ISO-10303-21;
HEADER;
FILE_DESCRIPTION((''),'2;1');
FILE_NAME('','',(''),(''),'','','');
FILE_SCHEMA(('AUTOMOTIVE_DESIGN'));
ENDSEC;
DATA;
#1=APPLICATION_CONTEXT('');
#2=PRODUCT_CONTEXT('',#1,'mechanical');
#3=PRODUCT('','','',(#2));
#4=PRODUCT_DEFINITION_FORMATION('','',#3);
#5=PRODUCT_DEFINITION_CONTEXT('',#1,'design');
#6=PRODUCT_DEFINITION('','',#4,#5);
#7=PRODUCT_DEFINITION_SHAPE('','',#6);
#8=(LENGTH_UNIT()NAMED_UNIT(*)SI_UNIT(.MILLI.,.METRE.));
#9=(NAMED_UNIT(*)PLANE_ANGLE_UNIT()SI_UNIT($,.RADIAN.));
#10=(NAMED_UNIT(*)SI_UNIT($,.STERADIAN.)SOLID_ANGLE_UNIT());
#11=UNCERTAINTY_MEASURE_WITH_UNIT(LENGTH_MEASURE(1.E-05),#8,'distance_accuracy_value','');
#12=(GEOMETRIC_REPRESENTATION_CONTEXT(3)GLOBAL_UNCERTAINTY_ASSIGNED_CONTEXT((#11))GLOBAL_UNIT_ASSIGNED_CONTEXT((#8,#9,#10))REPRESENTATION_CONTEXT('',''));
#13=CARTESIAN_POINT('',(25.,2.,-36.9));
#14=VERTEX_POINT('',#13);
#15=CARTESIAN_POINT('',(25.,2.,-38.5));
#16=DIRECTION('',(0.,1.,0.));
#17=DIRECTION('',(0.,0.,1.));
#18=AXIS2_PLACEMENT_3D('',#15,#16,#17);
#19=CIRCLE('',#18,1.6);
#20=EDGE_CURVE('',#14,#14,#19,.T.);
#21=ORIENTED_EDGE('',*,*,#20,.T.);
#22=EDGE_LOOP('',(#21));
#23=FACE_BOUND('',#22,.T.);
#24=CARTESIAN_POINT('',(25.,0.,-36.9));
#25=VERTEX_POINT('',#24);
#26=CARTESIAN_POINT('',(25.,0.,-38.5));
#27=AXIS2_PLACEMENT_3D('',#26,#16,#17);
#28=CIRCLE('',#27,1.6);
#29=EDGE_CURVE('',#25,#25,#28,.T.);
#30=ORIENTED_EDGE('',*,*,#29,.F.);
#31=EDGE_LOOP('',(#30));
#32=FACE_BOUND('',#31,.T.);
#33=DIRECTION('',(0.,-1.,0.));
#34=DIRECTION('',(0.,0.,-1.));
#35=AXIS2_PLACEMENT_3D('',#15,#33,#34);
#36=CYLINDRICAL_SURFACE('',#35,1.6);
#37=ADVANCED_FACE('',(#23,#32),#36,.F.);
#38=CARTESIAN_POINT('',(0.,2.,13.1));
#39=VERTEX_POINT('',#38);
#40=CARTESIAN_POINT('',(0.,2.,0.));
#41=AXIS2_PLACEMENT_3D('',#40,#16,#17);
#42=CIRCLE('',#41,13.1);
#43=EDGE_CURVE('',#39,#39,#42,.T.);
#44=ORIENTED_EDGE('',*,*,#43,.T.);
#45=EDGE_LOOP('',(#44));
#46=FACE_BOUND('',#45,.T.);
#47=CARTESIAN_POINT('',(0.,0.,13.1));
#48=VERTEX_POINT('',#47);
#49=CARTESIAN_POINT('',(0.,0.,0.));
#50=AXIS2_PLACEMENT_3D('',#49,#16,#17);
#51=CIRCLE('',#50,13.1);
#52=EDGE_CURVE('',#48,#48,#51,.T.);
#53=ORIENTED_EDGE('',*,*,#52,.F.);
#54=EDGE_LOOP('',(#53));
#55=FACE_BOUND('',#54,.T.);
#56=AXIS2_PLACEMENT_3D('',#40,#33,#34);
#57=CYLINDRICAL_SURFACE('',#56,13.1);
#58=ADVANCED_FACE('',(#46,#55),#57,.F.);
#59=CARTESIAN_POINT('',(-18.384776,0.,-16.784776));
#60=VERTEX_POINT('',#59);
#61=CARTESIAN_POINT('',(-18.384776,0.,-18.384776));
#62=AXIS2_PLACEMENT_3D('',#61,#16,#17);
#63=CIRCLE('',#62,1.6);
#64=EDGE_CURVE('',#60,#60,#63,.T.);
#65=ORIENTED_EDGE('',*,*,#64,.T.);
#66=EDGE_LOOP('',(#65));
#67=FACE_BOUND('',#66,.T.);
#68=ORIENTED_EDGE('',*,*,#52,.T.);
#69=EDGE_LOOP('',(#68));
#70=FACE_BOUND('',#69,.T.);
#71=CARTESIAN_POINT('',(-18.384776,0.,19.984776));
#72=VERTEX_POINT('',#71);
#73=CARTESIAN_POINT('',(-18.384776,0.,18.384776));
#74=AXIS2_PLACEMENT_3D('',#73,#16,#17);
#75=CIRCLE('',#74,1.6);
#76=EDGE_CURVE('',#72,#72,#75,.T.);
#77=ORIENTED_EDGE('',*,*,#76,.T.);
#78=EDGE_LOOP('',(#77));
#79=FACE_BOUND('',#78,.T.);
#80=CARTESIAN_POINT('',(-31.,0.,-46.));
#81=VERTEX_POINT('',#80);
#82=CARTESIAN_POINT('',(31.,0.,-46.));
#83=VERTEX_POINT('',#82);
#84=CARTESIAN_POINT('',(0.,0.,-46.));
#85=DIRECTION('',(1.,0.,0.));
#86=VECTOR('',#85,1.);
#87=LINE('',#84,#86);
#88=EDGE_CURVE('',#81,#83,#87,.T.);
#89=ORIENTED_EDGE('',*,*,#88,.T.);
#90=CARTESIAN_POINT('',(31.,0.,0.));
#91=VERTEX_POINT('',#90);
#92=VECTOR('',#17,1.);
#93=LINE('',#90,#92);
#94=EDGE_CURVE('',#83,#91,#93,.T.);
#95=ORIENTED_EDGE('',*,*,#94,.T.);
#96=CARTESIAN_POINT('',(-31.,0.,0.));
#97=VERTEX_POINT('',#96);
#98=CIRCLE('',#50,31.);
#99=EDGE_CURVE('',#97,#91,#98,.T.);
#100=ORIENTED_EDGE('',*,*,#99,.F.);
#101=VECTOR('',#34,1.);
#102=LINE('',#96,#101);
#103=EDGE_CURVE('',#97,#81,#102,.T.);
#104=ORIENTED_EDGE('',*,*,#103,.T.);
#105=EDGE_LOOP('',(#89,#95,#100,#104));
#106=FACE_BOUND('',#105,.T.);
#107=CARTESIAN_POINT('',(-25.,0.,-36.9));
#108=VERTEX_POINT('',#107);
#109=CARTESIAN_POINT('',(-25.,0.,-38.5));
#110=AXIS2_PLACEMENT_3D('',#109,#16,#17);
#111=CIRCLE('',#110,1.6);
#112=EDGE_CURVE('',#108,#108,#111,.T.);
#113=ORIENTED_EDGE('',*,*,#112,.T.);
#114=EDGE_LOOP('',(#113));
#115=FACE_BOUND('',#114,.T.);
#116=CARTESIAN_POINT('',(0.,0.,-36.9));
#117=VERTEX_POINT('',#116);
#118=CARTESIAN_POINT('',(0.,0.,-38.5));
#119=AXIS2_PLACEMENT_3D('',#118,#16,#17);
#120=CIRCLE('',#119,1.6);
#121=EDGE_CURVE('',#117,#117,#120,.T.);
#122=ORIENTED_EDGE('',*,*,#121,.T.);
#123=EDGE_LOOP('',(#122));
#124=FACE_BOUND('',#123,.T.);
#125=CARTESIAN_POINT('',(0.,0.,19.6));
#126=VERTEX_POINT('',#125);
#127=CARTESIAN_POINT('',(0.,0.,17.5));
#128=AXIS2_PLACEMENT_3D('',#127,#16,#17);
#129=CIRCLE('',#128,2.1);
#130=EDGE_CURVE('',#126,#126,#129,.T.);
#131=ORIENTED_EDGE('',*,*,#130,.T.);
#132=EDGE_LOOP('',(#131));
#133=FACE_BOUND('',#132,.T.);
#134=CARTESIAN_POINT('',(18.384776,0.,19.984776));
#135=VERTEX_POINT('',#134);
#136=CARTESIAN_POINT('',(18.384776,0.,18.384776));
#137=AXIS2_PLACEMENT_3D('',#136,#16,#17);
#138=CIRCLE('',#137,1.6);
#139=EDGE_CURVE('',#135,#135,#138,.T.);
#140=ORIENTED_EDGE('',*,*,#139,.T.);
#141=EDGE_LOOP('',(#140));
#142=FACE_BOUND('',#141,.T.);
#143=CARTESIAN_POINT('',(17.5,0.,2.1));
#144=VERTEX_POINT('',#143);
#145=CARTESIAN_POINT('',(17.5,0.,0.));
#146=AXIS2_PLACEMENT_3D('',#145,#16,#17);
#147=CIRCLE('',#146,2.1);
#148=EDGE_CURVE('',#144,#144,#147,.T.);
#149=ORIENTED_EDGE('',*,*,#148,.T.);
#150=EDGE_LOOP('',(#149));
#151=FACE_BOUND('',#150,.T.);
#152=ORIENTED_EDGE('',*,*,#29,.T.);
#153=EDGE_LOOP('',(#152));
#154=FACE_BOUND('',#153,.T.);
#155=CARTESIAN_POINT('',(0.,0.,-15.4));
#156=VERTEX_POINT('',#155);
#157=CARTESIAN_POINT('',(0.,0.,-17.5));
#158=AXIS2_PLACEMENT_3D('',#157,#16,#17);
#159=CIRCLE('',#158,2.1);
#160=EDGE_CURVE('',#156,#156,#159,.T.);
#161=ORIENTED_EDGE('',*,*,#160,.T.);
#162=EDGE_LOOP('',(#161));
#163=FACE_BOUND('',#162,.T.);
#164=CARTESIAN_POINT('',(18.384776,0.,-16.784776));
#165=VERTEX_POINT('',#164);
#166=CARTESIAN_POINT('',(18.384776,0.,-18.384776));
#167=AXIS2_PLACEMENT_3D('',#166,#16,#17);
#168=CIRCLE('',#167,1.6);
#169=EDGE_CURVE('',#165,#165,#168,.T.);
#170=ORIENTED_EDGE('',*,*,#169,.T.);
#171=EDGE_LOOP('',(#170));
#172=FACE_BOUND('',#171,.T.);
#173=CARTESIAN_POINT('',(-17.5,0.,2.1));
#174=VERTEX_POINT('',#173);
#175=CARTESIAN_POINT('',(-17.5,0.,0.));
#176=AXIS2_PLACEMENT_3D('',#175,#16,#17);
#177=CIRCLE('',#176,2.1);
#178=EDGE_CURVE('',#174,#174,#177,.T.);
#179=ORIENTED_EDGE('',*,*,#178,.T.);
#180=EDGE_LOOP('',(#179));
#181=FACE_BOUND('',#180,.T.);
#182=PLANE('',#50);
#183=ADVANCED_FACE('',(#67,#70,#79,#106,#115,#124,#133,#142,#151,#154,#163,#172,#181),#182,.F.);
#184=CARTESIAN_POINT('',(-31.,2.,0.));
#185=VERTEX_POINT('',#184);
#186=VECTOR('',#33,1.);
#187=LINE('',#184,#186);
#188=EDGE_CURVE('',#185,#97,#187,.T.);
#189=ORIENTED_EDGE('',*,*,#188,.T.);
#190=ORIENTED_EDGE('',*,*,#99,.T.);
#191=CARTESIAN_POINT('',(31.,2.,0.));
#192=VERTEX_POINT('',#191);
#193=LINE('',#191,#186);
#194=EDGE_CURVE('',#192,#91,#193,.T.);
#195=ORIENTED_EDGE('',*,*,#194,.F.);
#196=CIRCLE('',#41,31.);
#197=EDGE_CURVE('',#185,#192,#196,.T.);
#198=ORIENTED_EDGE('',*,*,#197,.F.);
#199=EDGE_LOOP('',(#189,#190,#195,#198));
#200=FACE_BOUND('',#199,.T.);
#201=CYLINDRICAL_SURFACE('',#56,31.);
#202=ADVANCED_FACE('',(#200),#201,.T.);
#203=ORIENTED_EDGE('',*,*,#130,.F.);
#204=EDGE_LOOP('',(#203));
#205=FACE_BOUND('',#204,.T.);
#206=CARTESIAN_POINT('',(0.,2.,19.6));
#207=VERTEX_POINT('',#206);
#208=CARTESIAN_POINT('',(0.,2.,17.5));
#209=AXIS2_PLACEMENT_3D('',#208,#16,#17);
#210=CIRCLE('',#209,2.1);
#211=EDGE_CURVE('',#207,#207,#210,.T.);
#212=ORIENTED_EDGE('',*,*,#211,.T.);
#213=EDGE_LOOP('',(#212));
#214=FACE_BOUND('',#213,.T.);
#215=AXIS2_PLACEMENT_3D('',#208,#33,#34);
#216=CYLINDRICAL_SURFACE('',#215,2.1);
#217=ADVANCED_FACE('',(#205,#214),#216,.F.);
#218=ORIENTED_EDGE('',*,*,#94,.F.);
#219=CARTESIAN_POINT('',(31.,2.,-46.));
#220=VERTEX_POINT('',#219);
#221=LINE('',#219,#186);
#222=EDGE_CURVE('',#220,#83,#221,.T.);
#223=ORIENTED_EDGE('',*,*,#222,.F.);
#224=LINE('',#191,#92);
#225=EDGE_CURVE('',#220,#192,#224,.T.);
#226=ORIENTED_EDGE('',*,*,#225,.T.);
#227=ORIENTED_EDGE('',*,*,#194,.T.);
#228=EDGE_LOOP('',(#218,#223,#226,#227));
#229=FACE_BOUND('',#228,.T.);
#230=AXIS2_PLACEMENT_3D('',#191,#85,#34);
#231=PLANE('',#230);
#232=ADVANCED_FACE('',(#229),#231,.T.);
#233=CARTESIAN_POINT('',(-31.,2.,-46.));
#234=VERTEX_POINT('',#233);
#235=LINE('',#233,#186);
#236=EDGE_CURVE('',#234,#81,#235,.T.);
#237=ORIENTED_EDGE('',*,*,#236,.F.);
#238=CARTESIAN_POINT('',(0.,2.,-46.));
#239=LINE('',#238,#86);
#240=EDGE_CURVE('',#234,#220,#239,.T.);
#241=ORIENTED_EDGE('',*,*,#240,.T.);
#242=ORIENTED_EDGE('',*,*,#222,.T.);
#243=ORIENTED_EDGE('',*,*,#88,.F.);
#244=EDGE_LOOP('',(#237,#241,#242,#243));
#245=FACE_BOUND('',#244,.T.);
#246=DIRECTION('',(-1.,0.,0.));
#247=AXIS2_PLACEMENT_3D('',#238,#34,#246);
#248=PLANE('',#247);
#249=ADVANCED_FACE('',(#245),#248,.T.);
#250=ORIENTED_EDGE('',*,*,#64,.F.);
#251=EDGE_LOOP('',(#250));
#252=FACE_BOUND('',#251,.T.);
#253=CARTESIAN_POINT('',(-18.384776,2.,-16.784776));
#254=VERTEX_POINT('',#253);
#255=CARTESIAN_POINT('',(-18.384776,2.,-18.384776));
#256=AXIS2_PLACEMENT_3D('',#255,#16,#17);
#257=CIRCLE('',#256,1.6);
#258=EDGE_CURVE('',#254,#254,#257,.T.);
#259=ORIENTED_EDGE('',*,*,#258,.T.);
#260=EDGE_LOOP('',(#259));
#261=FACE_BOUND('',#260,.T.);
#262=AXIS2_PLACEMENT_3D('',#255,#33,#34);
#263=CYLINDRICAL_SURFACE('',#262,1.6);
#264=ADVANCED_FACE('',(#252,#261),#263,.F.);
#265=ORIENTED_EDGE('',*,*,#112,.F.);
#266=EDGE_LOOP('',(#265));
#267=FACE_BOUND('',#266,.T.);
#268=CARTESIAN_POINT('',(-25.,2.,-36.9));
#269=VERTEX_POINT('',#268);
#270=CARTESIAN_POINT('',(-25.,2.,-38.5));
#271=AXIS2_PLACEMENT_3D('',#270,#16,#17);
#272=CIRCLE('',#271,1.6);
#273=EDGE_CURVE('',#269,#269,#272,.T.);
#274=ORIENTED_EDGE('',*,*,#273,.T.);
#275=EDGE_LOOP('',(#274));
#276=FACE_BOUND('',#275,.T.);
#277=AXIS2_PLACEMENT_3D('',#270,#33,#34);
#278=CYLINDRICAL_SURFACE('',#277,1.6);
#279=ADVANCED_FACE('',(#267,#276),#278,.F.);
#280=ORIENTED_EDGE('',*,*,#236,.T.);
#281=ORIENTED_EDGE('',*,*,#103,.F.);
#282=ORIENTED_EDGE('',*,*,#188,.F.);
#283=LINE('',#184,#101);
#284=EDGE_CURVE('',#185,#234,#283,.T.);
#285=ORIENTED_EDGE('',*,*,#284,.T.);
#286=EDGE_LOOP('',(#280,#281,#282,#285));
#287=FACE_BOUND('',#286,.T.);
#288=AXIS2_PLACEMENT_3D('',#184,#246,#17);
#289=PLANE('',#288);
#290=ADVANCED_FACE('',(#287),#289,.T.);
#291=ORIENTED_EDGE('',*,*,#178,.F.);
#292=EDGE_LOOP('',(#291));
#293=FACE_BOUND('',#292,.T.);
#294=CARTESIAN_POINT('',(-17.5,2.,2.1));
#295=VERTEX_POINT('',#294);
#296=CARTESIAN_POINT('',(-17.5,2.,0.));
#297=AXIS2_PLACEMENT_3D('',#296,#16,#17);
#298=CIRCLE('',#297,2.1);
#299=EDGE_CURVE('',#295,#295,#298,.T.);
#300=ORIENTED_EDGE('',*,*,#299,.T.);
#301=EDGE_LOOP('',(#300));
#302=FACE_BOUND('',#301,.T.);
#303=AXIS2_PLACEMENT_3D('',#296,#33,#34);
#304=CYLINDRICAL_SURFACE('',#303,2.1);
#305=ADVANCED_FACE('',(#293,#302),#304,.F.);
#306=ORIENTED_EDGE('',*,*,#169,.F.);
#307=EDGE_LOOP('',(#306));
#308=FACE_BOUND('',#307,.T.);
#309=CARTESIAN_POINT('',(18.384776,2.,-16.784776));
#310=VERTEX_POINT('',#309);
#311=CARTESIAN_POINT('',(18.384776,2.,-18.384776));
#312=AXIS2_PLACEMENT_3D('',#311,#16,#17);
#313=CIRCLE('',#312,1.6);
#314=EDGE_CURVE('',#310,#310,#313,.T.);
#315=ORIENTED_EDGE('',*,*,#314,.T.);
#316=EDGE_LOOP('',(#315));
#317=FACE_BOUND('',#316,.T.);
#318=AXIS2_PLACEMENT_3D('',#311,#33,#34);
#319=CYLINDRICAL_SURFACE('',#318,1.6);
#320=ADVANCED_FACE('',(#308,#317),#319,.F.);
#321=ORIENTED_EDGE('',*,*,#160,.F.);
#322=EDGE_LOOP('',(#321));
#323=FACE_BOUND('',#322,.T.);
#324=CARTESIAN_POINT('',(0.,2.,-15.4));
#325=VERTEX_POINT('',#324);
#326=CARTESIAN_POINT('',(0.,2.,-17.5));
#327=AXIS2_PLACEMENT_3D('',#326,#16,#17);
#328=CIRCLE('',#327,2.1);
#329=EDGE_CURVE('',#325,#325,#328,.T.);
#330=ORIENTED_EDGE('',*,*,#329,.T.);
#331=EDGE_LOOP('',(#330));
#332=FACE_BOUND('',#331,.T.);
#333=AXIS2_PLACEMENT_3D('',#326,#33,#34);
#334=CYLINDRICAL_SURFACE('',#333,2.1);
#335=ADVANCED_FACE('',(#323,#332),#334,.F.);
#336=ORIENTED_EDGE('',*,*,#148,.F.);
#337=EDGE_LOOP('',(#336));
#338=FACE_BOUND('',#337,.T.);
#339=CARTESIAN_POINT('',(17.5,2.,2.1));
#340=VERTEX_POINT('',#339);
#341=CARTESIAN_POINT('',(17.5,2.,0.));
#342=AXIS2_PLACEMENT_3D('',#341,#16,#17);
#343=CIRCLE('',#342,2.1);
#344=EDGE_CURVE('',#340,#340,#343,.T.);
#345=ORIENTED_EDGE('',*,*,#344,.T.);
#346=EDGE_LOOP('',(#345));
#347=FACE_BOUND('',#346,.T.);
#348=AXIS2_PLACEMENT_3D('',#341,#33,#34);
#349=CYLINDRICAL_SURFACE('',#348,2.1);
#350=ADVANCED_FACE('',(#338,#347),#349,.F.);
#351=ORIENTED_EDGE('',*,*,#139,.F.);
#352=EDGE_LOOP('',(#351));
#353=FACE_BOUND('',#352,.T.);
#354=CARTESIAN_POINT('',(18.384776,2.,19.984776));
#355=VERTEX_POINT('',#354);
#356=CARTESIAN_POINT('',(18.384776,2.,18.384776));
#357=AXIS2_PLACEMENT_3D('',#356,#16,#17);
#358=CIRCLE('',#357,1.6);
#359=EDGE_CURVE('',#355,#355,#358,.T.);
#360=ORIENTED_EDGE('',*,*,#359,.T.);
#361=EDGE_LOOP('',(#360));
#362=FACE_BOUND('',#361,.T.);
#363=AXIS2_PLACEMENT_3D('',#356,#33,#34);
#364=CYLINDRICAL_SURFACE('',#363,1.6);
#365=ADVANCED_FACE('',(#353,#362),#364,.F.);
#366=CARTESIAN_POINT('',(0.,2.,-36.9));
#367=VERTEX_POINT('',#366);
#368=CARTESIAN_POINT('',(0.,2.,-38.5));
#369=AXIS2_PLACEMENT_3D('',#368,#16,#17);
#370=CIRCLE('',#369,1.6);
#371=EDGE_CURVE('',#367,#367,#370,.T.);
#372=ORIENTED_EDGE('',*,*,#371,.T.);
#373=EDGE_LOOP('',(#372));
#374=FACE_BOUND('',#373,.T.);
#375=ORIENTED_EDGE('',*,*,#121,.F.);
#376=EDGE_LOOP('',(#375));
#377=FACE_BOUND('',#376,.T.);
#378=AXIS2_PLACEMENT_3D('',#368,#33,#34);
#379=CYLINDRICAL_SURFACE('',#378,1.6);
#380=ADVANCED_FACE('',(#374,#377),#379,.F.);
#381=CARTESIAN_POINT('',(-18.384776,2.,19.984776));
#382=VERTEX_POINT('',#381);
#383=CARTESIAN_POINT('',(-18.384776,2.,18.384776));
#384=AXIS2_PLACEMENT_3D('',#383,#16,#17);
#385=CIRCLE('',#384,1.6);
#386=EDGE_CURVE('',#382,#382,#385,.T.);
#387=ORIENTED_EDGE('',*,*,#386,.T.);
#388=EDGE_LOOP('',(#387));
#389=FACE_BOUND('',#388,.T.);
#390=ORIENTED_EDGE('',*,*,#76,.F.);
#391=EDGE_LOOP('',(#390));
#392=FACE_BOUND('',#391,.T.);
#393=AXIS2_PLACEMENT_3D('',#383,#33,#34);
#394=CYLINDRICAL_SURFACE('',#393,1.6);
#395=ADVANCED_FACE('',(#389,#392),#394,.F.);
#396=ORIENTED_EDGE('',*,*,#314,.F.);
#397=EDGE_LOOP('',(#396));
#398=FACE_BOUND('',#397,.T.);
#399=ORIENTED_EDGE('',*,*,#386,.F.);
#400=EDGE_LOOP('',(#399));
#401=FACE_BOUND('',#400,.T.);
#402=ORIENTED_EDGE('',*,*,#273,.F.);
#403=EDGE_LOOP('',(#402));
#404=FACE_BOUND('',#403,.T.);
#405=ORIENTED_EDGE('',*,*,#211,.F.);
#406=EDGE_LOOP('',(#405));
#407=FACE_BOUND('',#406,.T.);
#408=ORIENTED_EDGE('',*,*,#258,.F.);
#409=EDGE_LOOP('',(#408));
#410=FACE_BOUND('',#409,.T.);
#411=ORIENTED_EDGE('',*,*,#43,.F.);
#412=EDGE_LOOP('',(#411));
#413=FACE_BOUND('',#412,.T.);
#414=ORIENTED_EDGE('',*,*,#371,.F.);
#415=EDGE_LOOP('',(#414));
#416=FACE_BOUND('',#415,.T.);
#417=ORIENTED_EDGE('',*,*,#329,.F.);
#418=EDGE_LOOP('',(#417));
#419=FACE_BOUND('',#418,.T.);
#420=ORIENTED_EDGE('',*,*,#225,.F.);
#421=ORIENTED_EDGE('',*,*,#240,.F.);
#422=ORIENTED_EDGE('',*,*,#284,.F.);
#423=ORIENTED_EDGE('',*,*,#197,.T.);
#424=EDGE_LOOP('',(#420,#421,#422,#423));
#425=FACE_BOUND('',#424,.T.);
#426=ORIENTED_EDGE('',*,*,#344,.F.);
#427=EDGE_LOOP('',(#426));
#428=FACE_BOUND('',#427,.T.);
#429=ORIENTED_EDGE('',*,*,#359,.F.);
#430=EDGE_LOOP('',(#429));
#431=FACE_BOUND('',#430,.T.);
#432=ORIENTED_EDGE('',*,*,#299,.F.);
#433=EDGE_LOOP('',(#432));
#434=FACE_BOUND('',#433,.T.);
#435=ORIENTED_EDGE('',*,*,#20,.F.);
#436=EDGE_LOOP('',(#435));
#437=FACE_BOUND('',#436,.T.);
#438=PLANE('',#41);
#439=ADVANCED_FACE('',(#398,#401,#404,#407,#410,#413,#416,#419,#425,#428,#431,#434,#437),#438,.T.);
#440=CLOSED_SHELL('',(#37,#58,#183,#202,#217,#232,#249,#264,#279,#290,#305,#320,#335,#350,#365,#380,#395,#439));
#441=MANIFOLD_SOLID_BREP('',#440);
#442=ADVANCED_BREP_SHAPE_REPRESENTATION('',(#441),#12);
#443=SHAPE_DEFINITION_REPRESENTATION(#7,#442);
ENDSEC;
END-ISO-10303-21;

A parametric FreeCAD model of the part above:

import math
import FreeCAD as App
import Part
import Sketcher

doc = App.newDocument("Part")
body = doc.addObject("PartDesign::Body", "Body")

sketch1 = doc.addObject("Sketcher::SketchObject", "Sketch")
body.addObject(sketch1)
sketch1.AttachmentSupport = (doc.XZ_Plane, [""])
sketch1.MapMode = "FlatFace"
sketch1.addGeometry(Part.LineSegment(App.Vector(-31, -46, 0), App.Vector(-31, 0, 0)), False)
sketch1.addGeometry(Part.ArcOfCircle(Part.Circle(App.Vector(0, 0, 0), App.Vector(0, 0, 1), 31), math.radians(0), math.radians(180)), False)
sketch1.addGeometry(Part.LineSegment(App.Vector(31, 0, 0), App.Vector(31, -46, 0)), False)
sketch1.addGeometry(Part.LineSegment(App.Vector(31, -46, 0), App.Vector(-31, -46, 0)), False)
sketch1.addGeometry(Part.Circle(App.Vector(-25, -38.5, 0), App.Vector(0, 0, 1), 1.6), False)
sketch1.addGeometry(Part.Circle(App.Vector(0, -38.5, 0), App.Vector(0, 0, 1), 1.6), False)
sketch1.addGeometry(Part.Circle(App.Vector(25, -38.5, 0), App.Vector(0, 0, 1), 1.6), False)
sketch1.addGeometry(Part.Circle(App.Vector(18.384776, -18.384776, 0), App.Vector(0, 0, 1), 1.6), False)
sketch1.addGeometry(Part.Circle(App.Vector(-18.384776, 18.384776, 0), App.Vector(0, 0, 1), 1.6), False)
sketch1.addGeometry(Part.Circle(App.Vector(18.384776, 18.384776, 0), App.Vector(0, 0, 1), 1.6), False)
sketch1.addGeometry(Part.Circle(App.Vector(-18.384776, -18.384776, 0), App.Vector(0, 0, 1), 1.6), False)
sketch1.addGeometry(Part.Circle(App.Vector(0, -17.5, 0), App.Vector(0, 0, 1), 2.1), False)
sketch1.addGeometry(Part.Circle(App.Vector(0, 17.5, 0), App.Vector(0, 0, 1), 2.1), False)
sketch1.addGeometry(Part.Circle(App.Vector(-17.5, 0, 0), App.Vector(0, 0, 1), 2.1), False)
sketch1.addGeometry(Part.Circle(App.Vector(0, 0, 0), App.Vector(0, 0, 1), 13.1), False)
sketch1.addGeometry(Part.Circle(App.Vector(17.5, 0, 0), App.Vector(0, 0, 1), 2.1), False)
sketch1.addConstraint(Sketcher.Constraint("Tangent", 0, 2, 1, 2))
sketch1.addConstraint(Sketcher.Constraint("Tangent", 1, 1, 2, 1))
sketch1.addConstraint(Sketcher.Constraint("Coincident", 2, 2, 3, 1))
sketch1.addConstraint(Sketcher.Constraint("Coincident", 3, 2, 0, 1))
sketch1.addConstraint(Sketcher.Constraint("Vertical", 0))
sketch1.addConstraint(Sketcher.Constraint("Vertical", 2))
sketch1.addConstraint(Sketcher.Constraint("Horizontal", 3))
sketch1.addConstraint(Sketcher.Constraint("Coincident", 1, 3, -1, 1))
sketch1.addConstraint(Sketcher.Constraint("Coincident", 14, 3, -1, 1))
sketch1.addConstraint(Sketcher.Constraint("Equal", 4, 5))
sketch1.addConstraint(Sketcher.Constraint("Equal", 5, 6))
sketch1.addConstraint(Sketcher.Constraint("Equal", 6, 7))
sketch1.addConstraint(Sketcher.Constraint("Equal", 7, 8))
sketch1.addConstraint(Sketcher.Constraint("Equal", 8, 9))
sketch1.addConstraint(Sketcher.Constraint("Equal", 9, 10))
sketch1.addConstraint(Sketcher.Constraint("Equal", 11, 12))
sketch1.addConstraint(Sketcher.Constraint("Equal", 12, 13))
sketch1.addConstraint(Sketcher.Constraint("Equal", 13, 15))
sketch1.addConstraint(Sketcher.Constraint("Symmetric", 7, 3, 8, 3, -1, 1))
sketch1.addConstraint(Sketcher.Constraint("Symmetric", 9, 3, 10, 3, -1, 1))
sketch1.addConstraint(Sketcher.Constraint("Symmetric", 11, 3, 12, 3, -1, 1))
sketch1.addConstraint(Sketcher.Constraint("Symmetric", 13, 3, 15, 3, -1, 1))
sketch1.addConstraint(Sketcher.Constraint("Symmetric", 4, 3, 6, 3, -2))
sketch1.addConstraint(Sketcher.Constraint("Symmetric", 8, 3, 9, 3, -2))
sketch1.addConstraint(Sketcher.Constraint("PointOnObject", 5, 3, -2))
sketch1.addConstraint(Sketcher.Constraint("PointOnObject", 11, 3, -2))
sketch1.addConstraint(Sketcher.Constraint("PointOnObject", 13, 3, -1))
sketch1.addConstraint(Sketcher.Constraint("Horizontal", 4, 3, 5, 3))
sketch1.addConstraint(Sketcher.Constraint("Radius", 1, 31.0))
sketch1.addConstraint(Sketcher.Constraint("Diameter", 4, 3.2))
sketch1.addConstraint(Sketcher.Constraint("Diameter", 11, 4.2))
sketch1.addConstraint(Sketcher.Constraint("Diameter", 14, 26.2))
sketch1.addConstraint(Sketcher.Constraint("DistanceY", 0, 1, 0, 2, 46.0))
sketch1.addConstraint(Sketcher.Constraint("DistanceX", 4, 3, -1, 1, 25.0))
sketch1.addConstraint(Sketcher.Constraint("DistanceY", 5, 3, 11, 3, 21.0))
sketch1.addConstraint(Sketcher.Constraint("DistanceY", 11, 3, 12, 3, 35.0))
sketch1.addConstraint(Sketcher.Constraint("DistanceX", 13, 3, -1, 1, 17.5))
sketch1.addConstraint(Sketcher.Constraint("DistanceX", -1, 1, 7, 3, 18.384776))
sketch1.addConstraint(Sketcher.Constraint("DistanceY", 7, 3, -1, 1, 18.384776))
pad1 = doc.addObject("PartDesign::Pad", "Pad")
body.addObject(pad1)
pad1.Profile = sketch1
pad1.Length = 2
pad1.Reversed = True

doc.recompute()
